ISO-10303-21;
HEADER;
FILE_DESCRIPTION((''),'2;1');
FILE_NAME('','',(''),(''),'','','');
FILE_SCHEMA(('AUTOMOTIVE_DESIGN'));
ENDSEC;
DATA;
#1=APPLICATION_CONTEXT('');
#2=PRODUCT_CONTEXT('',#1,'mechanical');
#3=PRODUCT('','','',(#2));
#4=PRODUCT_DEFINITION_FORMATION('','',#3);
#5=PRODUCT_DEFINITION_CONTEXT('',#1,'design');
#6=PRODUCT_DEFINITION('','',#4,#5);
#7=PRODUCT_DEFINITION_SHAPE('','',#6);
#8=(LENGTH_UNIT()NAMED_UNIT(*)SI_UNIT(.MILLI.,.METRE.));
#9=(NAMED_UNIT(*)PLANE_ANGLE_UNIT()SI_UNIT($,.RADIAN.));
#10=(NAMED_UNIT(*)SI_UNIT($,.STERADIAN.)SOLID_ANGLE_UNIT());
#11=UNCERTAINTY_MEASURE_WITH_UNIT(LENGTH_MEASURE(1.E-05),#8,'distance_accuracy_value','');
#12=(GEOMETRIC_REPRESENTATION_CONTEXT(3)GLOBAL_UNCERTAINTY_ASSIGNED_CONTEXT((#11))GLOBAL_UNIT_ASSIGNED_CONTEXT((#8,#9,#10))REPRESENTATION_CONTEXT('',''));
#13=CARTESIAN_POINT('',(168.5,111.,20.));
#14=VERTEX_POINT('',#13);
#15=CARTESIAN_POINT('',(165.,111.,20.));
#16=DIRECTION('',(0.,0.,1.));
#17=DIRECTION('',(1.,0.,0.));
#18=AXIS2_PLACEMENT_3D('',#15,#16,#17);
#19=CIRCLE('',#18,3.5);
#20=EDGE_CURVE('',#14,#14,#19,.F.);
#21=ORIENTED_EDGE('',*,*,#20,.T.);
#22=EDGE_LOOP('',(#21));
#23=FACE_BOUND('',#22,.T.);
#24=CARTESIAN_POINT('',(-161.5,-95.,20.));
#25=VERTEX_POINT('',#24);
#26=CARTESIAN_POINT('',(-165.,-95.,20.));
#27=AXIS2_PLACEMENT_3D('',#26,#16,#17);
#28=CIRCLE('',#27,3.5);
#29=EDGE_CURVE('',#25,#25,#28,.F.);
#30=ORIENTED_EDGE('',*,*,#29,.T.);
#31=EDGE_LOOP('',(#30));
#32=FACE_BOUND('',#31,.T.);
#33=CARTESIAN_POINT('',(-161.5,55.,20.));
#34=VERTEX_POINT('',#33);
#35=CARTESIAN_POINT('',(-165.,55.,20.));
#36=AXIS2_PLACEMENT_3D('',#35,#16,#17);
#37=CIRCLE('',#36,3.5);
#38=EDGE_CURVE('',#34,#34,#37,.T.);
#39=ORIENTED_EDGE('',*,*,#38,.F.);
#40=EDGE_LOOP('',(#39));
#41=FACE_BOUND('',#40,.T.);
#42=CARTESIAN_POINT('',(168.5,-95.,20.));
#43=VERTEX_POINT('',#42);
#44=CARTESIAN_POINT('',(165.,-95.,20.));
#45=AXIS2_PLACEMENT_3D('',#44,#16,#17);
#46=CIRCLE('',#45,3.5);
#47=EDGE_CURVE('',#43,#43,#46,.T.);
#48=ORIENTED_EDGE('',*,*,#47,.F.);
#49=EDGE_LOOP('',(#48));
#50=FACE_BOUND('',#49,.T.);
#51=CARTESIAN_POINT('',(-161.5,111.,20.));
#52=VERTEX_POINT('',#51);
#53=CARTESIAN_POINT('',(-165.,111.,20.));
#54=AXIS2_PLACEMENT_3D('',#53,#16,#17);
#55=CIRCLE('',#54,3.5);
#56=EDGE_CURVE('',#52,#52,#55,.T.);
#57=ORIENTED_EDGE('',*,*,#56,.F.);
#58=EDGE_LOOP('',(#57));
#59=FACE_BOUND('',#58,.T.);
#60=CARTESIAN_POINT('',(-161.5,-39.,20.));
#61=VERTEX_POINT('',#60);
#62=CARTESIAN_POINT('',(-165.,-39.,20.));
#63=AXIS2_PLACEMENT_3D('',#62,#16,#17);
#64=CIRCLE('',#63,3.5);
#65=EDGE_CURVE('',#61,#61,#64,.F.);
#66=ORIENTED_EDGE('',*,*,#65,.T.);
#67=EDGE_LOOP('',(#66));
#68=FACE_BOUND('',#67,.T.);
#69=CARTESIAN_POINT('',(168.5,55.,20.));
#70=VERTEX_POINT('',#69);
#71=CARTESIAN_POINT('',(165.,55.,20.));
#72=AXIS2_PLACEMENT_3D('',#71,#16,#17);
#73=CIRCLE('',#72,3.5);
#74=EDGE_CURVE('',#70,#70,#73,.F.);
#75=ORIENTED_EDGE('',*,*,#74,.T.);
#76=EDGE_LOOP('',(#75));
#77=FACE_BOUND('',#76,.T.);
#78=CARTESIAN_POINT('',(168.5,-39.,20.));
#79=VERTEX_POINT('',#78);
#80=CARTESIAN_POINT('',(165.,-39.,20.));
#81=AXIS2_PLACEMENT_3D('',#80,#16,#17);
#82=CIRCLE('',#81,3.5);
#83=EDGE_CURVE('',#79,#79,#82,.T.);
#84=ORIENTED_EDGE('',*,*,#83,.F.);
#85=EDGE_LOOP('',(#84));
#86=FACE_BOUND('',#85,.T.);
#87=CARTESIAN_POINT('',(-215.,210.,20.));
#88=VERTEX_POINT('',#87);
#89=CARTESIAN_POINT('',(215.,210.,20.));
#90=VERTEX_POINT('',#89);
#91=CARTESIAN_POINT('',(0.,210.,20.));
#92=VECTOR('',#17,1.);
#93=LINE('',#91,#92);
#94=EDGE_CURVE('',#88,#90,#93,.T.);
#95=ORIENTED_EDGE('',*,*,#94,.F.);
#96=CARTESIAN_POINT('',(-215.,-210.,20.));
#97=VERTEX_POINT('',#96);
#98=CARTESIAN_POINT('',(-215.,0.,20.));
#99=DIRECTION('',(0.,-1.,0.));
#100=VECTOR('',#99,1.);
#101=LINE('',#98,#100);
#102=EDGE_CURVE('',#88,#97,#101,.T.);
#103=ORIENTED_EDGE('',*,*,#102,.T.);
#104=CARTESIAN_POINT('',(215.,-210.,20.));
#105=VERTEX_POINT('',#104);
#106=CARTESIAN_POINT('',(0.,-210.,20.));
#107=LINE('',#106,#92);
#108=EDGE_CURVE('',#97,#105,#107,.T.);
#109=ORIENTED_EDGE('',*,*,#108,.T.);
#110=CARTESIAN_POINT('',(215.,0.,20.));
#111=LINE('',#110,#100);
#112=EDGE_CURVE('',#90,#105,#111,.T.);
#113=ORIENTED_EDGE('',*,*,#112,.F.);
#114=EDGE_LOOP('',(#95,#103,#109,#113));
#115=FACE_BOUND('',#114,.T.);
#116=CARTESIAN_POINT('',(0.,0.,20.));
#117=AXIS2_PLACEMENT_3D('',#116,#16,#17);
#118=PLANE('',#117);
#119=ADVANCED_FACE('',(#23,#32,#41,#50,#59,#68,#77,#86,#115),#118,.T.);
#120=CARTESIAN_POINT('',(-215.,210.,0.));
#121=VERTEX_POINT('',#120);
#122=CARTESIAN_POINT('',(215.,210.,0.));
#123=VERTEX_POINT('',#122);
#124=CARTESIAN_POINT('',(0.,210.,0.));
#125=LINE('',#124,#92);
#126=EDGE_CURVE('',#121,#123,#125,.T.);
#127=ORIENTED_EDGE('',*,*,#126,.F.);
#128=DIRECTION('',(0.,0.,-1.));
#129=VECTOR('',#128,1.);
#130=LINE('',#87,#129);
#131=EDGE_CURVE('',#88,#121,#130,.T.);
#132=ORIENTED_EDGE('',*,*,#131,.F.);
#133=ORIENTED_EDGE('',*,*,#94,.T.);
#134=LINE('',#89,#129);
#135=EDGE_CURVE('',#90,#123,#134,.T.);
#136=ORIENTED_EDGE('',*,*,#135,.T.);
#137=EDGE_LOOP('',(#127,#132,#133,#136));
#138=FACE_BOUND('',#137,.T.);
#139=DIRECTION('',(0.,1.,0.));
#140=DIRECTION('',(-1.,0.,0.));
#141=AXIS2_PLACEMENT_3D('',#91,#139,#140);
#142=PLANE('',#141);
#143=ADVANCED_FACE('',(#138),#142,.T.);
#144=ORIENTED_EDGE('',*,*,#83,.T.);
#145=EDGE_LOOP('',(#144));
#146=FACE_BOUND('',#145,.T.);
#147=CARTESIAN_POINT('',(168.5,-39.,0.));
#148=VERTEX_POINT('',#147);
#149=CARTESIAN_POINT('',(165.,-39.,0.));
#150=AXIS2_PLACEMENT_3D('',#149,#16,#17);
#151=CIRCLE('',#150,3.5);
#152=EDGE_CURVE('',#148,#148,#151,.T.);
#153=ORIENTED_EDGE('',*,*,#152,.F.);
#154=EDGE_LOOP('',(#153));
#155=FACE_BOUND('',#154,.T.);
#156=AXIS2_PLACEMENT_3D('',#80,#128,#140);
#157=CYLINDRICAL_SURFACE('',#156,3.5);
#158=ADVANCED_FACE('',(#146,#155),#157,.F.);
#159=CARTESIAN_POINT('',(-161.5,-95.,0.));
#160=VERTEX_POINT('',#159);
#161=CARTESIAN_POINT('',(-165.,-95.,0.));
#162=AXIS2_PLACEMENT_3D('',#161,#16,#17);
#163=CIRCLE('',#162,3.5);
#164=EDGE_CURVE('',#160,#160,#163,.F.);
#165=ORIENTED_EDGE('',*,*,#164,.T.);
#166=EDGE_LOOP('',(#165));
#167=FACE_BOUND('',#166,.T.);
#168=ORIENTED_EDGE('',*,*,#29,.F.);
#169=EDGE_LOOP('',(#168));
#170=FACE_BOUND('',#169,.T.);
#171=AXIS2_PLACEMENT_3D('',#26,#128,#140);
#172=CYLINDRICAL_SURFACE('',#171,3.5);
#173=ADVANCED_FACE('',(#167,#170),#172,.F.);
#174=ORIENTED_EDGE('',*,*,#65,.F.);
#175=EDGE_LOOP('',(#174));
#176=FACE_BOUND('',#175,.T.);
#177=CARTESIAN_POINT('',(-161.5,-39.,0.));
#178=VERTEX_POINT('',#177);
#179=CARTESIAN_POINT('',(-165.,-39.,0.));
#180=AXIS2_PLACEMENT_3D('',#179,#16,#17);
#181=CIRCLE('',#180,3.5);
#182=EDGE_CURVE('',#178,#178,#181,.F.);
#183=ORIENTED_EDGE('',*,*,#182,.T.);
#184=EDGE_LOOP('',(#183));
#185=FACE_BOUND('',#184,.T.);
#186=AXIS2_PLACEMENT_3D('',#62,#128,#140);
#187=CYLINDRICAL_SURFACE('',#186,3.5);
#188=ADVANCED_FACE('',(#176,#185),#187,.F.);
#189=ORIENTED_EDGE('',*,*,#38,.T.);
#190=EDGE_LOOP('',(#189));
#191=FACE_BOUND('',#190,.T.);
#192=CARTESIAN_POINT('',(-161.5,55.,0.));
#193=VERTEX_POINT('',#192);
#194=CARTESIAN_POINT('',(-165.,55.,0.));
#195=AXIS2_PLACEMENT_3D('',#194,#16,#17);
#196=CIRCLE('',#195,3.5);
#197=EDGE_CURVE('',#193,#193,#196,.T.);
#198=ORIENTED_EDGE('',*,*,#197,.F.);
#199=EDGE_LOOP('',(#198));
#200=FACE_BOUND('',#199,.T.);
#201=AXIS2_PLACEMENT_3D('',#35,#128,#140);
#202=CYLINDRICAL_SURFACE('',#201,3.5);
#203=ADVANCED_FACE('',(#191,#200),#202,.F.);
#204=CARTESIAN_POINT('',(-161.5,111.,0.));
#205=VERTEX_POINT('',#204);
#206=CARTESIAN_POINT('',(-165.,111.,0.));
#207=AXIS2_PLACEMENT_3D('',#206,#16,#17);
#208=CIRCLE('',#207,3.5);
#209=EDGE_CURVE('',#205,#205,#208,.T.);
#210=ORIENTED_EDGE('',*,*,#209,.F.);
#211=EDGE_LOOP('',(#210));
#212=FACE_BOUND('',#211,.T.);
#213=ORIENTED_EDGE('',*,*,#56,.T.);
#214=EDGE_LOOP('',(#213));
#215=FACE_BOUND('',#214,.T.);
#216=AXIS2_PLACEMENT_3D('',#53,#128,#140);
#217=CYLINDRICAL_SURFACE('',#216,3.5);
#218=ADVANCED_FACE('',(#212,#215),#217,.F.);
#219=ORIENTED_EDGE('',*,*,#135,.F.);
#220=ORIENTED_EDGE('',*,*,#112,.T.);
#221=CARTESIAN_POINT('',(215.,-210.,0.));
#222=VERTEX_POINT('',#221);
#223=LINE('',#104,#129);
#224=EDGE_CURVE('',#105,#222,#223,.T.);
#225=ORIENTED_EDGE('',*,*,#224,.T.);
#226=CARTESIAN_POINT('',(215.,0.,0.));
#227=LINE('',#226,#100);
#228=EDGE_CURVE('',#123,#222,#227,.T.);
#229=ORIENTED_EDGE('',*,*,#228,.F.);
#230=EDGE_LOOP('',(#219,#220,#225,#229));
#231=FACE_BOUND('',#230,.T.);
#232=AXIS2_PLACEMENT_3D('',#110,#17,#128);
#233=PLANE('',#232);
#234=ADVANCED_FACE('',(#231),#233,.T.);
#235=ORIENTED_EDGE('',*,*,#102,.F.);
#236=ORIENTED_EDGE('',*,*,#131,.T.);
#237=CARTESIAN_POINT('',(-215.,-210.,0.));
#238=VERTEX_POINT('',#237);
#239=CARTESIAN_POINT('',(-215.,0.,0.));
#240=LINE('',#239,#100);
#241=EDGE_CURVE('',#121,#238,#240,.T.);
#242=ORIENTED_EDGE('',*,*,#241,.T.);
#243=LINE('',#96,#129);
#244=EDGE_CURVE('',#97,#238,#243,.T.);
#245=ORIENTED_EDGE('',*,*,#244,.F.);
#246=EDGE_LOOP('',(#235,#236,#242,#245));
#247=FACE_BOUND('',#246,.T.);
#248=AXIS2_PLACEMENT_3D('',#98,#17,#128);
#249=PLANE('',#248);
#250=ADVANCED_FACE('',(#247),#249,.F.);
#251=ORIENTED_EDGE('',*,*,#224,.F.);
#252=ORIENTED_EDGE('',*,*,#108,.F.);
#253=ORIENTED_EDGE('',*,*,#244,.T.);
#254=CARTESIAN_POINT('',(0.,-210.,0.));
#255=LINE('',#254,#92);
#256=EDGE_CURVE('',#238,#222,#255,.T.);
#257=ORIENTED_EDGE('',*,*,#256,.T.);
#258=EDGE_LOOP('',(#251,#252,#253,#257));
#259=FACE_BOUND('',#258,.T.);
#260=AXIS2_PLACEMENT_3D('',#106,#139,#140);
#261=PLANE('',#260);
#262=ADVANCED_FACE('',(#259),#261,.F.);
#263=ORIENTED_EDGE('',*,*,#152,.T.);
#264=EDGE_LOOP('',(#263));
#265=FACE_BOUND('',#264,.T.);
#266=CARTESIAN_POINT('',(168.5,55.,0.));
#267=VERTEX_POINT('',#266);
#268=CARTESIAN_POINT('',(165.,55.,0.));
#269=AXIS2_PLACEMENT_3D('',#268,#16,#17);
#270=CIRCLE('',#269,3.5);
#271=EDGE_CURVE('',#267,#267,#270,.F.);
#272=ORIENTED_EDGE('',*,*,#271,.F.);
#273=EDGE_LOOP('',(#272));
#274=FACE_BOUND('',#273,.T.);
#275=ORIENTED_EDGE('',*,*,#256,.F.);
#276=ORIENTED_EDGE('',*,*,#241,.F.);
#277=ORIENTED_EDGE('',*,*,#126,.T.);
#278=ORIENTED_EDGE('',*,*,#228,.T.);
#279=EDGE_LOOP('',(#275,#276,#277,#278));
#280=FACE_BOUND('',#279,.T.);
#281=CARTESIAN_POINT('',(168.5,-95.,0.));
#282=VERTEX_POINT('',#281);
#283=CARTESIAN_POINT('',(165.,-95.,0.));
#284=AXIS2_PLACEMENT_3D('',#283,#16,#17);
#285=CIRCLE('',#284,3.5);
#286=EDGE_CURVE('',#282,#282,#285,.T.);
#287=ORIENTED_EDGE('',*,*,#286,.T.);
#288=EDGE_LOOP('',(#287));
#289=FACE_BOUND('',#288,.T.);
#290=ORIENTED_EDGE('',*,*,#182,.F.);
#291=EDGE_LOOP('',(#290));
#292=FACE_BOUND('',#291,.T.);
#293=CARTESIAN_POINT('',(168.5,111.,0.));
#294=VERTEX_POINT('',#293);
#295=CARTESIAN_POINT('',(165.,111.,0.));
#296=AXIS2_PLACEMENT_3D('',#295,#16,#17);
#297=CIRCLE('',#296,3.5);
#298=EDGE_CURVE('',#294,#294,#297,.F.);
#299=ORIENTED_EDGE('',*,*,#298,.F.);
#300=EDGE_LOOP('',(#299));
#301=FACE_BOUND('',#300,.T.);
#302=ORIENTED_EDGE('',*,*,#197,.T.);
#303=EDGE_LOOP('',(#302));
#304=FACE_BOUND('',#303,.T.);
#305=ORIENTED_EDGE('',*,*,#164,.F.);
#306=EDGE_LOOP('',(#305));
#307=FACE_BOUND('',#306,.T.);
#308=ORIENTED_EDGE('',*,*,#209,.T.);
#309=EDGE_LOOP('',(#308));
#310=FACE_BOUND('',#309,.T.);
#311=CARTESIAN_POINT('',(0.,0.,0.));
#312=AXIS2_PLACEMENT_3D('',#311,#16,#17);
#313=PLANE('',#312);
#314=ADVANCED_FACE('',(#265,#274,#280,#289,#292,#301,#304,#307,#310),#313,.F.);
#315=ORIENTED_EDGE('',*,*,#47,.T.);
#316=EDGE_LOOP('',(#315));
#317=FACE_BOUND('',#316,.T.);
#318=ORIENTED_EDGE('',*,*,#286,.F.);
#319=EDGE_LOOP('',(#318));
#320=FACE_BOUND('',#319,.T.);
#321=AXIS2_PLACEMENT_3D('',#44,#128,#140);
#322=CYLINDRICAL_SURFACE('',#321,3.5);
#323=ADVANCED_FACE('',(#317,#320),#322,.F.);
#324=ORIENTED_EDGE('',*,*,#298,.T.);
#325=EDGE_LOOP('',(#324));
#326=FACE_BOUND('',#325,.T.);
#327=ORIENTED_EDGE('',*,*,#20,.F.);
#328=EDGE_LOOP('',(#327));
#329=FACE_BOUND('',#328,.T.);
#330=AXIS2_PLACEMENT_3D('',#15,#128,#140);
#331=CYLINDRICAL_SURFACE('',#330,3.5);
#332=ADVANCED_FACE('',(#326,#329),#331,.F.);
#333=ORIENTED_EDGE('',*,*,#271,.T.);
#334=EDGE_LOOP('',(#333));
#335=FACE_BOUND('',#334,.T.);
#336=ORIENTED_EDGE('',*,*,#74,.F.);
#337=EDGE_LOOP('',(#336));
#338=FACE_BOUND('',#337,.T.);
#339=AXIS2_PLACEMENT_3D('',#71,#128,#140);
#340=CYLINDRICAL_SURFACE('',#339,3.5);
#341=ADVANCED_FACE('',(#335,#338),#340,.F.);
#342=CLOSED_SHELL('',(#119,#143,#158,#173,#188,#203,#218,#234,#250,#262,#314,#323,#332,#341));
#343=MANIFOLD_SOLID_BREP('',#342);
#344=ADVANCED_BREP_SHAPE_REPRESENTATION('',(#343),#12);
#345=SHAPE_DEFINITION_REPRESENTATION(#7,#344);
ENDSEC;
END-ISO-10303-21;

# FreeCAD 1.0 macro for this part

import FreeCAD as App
import Part
import Sketcher
from FreeCAD import Vector
Q = App.Units.Quantity


def add_polygon(sketch, points):
    """Adds a closed chain of lines whose ends are joined by coincident constraints."""
    first, n = sketch.GeometryCount, len(points)
    for a, b in zip(points, points[1:] + points[:1]):
        sketch.addGeometry(Part.LineSegment(App.Vector(*a, 0), App.Vector(*b, 0)), False)
    for i in range(n):
        sketch.addConstraint(Sketcher.Constraint("Coincident", first + i, 2, first + (i + 1) % n, 1))

doc = App.newDocument("Part")
body = doc.addObject("PartDesign::Body", "Body")

# Sketch on XY plane
sketch1 = body.newObject("Sketcher::SketchObject", "Sketch")
sketch1.AttachmentSupport = (doc.getObject("XY_Plane"), [""])
sketch1.MapMode = "FlatFace"
add_polygon(sketch1, [(-215, 210), (-215, -210), (215, -210), (215, 210)])  # lines 0-3
sketch1.addGeometry(Part.Circle(Vector(-165, -95, 0), Vector(0, 0, 1), 3.5), False)  # 4
sketch1.addGeometry(Part.Circle(Vector(-165, -39, 0), Vector(0, 0, 1), 3.5), False)  # 5
sketch1.addGeometry(Part.Circle(Vector(165, -95, 0), Vector(0, 0, 1), 3.5), False)  # 6
sketch1.addGeometry(Part.Circle(Vector(165, -39, 0), Vector(0, 0, 1), 3.5), False)  # 7
sketch1.addGeometry(Part.Circle(Vector(-165, 55, 0), Vector(0, 0, 1), 3.5), False)  # 8
sketch1.addGeometry(Part.Circle(Vector(-165, 111, 0), Vector(0, 0, 1), 3.5), False)  # 9
sketch1.addGeometry(Part.Circle(Vector(165, 55, 0), Vector(0, 0, 1), 3.5), False)  # 10
sketch1.addGeometry(Part.Circle(Vector(165, 111, 0), Vector(0, 0, 1), 3.5), False)  # 11
sketch1.addConstraint([
    Sketcher.Constraint("Vertical", 0),
    Sketcher.Constraint("Horizontal", 1),
    Sketcher.Constraint("Vertical", 2),
    Sketcher.Constraint("Horizontal", 3),
    Sketcher.Constraint("Equal", 4, 5),
    Sketcher.Constraint("Equal", 5, 6),
    Sketcher.Constraint("Equal", 6, 7),
    Sketcher.Constraint("Equal", 7, 8),
    Sketcher.Constraint("Equal", 8, 9),
    Sketcher.Constraint("Equal", 9, 10),
    Sketcher.Constraint("Equal", 10, 11),
    Sketcher.Constraint("Symmetric", 0, 2, 2, 2, -1, 1),
    Sketcher.Constraint("Symmetric", 4, 3, 6, 3, -2),
    Sketcher.Constraint("Symmetric", 5, 3, 7, 3, -2),
    Sketcher.Constraint("Symmetric", 8, 3, 10, 3, -2),
    Sketcher.Constraint("Symmetric", 9, 3, 11, 3, -2),
    Sketcher.Constraint("Vertical", 4, 3, 5, 3),
    Sketcher.Constraint("Vertical", 5, 3, 8, 3),
    Sketcher.Constraint("Vertical", 8, 3, 9, 3),
    Sketcher.Constraint("Diameter", 4, Q("7 mm")),
    Sketcher.Constraint("DistanceX", 1, 1, 1, 2, Q("430 mm")),
    Sketcher.Constraint("DistanceY", 0, 2, 0, 1, Q("420 mm")),
    Sketcher.Constraint("DistanceX", 4, 3, -1, 1, Q("165 mm")),
    Sketcher.Constraint("DistanceY", 4, 3, -1, 1, Q("95 mm")),
    Sketcher.Constraint("DistanceY", 5, 3, -1, 1, Q("39 mm")),
    Sketcher.Constraint("DistanceY", -1, 1, 8, 3, Q("55 mm")),
    Sketcher.Constraint("DistanceY", -1, 1, 9, 3, Q("111 mm")),
])
pad1 = body.newObject("PartDesign::Pad", "Pad")
pad1.Profile = sketch1
pad1.Length = 20

doc.recompute()
